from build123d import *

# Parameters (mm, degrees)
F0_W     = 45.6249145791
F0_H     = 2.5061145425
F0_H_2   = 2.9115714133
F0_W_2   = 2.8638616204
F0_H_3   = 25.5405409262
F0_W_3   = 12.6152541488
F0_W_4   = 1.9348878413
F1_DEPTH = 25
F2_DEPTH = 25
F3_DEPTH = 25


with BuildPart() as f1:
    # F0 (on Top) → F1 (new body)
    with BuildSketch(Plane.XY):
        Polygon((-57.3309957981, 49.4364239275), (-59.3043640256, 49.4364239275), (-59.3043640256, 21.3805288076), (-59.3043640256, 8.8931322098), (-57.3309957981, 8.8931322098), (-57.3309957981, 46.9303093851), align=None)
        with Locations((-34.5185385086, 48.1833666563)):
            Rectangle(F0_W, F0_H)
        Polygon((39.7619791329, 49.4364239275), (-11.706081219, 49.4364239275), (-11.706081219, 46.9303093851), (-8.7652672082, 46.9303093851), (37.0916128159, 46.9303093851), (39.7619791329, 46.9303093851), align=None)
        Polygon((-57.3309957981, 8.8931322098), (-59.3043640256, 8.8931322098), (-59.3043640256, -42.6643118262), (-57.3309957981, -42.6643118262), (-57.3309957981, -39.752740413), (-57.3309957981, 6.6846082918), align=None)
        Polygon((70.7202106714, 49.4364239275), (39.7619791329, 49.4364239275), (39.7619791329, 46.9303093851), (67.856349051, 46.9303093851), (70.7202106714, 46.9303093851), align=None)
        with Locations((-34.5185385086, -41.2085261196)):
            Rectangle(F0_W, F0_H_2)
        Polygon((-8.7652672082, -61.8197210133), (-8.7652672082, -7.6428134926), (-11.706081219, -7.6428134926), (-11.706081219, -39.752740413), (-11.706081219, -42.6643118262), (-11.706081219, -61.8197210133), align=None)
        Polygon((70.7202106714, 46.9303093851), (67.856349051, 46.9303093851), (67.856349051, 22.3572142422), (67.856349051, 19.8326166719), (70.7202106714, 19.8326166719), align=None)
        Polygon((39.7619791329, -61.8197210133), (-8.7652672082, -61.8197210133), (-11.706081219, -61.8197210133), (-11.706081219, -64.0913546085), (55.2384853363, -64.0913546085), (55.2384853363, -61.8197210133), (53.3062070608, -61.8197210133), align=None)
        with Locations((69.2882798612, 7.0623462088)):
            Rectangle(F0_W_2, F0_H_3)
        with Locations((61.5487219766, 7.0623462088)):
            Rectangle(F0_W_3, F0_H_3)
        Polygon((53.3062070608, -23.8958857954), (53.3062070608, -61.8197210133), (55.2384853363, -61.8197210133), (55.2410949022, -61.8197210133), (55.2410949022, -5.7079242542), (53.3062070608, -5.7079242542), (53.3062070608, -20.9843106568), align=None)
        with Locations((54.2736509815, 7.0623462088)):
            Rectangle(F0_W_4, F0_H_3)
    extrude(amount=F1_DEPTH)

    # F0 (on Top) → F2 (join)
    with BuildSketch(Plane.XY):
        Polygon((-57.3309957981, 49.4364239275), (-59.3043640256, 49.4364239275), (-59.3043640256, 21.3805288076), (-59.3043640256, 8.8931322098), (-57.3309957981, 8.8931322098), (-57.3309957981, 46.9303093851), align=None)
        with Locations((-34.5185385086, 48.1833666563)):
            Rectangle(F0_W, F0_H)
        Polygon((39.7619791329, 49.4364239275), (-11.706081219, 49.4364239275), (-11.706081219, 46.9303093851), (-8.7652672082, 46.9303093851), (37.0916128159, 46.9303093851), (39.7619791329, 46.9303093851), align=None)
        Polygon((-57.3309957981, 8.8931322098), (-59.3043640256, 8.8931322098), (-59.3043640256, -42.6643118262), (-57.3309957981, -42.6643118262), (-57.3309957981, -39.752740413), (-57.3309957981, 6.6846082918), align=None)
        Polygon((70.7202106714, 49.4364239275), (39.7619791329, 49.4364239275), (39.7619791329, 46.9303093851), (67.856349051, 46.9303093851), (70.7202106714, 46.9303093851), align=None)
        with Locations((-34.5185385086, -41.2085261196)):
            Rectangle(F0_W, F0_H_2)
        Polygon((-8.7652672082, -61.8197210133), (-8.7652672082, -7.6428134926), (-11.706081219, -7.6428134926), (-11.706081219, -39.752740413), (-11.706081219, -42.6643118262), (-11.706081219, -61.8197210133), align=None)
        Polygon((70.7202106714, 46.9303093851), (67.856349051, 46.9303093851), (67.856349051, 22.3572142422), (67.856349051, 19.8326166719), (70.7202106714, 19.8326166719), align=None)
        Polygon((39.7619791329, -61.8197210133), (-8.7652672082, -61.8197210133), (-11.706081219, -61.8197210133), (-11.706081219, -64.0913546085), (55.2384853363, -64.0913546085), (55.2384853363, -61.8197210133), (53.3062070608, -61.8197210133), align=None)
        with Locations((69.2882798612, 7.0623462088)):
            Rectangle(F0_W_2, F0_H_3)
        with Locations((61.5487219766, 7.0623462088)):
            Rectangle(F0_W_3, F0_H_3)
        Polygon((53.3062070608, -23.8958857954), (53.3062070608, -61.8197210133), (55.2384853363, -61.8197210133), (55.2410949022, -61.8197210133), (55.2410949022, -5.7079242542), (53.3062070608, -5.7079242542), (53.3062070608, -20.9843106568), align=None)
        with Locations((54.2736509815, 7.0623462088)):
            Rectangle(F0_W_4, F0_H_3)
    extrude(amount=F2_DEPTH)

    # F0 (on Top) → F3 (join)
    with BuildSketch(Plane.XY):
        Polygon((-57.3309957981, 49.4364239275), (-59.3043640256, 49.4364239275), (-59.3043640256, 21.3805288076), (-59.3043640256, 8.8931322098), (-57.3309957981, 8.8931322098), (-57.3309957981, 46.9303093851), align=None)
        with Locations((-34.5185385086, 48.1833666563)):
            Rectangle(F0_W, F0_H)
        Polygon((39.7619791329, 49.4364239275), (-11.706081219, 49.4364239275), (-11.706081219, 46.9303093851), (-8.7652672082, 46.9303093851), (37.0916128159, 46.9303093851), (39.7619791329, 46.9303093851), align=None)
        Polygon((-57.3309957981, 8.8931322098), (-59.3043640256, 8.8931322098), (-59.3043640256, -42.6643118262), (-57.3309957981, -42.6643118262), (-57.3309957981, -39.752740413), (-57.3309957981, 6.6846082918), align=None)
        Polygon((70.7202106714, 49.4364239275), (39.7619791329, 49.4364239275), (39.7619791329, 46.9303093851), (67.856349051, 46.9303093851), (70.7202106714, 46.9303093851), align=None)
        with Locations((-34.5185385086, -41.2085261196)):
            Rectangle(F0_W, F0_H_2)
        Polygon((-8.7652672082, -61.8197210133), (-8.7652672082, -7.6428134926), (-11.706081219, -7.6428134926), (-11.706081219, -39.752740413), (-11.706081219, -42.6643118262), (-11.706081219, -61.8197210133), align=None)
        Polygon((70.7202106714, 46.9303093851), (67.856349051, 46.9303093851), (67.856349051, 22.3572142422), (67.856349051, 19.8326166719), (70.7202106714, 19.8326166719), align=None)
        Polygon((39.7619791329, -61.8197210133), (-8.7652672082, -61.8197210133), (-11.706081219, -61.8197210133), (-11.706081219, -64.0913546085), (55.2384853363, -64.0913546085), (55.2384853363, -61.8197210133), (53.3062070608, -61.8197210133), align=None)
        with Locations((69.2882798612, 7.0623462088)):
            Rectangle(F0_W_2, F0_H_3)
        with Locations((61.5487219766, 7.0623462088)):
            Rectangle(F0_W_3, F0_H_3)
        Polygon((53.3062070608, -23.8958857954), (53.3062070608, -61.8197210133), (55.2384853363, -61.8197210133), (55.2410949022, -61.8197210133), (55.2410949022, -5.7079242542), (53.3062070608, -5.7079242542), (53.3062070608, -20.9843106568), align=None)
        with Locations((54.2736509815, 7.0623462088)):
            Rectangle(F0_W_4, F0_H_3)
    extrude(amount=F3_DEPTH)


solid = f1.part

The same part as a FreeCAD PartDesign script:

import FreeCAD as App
import Part
import Sketcher
from FreeCAD import Vector


def add_polygon(sketch, points):
    """Adds a closed chain of lines whose ends are joined by coincident constraints."""
    first, n = sketch.GeometryCount, len(points)
    for a, b in zip(points, points[1:] + points[:1]):
        sketch.addGeometry(Part.LineSegment(App.Vector(*a, 0), App.Vector(*b, 0)), False)
    for i in range(n):
        sketch.addConstraint(Sketcher.Constraint("Coincident", first + i, 2, first + (i + 1) % n, 1))

doc = App.newDocument("Part")
body = doc.addObject("PartDesign::Body", "Body")

# Sketch on XY plane
sketch1 = body.newObject("Sketcher::SketchObject", "Sketch")
sketch1.AttachmentSupport = (doc.getObject("XY_Plane"), [""])
sketch1.MapMode = "FlatFace"
add_polygon(sketch1, [(55.2411, -61.8197), (55.2411, -5.7079), (70.7202, -5.7079), (70.7202, 49.4364), (-59.3044, 49.4364), (-59.3044, -42.6643), (-57.331, -42.6643), (-11.7061, -42.6643), (-11.7061, -64.0914), (55.2385, -64.0914), (55.2385, -61.8197)])  # lines 0-10
add_polygon(sketch1, [(67.8563, 19.8326), (53.3062, 19.8326), (53.3062, -61.8197), (-8.7653, -61.8197), (-8.7653, -7.6428), (-11.7061, -7.6428), (-11.7061, -39.7527), (-57.331, -39.7527), (-57.331, 46.9303), (67.8563, 46.9303)])  # lines 11-20
sketch1.addConstraint(Sketcher.Constraint("Vertical", 0))
sketch1.addConstraint(Sketcher.Constraint("Horizontal", 1))
sketch1.addConstraint(Sketcher.Constraint("Vertical", 2))
sketch1.addConstraint(Sketcher.Constraint("Horizontal", 3))
sketch1.addConstraint(Sketcher.Constraint("Vertical", 4))
sketch1.addConstraint(Sketcher.Constraint("Horizontal", 5))
sketch1.addConstraint(Sketcher.Constraint("Horizontal", 6))
sketch1.addConstraint(Sketcher.Constraint("Vertical", 7))
sketch1.addConstraint(Sketcher.Constraint("Horizontal", 8))
sketch1.addConstraint(Sketcher.Constraint("Vertical", 9))
sketch1.addConstraint(Sketcher.Constraint("Horizontal", 10))
sketch1.addConstraint(Sketcher.Constraint("Horizontal", 11))
sketch1.addConstraint(Sketcher.Constraint("Vertical", 12))
sketch1.addConstraint(Sketcher.Constraint("Horizontal", 13))
sketch1.addConstraint(Sketcher.Constraint("Vertical", 14))
sketch1.addConstraint(Sketcher.Constraint("Horizontal", 15))
sketch1.addConstraint(Sketcher.Constraint("Vertical", 16))
sketch1.addConstraint(Sketcher.Constraint("Horizontal", 17))
sketch1.addConstraint(Sketcher.Constraint("Vertical", 18))
sketch1.addConstraint(Sketcher.Constraint("Horizontal", 19))
sketch1.addConstraint(Sketcher.Constraint("Vertical", 20))
sketch1.addConstraint(Sketcher.Constraint("Horizontal", 10, 2, 12, 2))
sketch1.addConstraint(Sketcher.Constraint("Vertical", 7, 2, 15, 2))
sketch1.addConstraint(Sketcher.Constraint("Vertical", 5, 2, 17, 2))
sketch1.addConstraint(Sketcher.Constraint("DistanceX", 5, 1, 5, 2, 1.973368))
sketch1.addConstraint(Sketcher.Constraint("DistanceX", 10, 1, 10, 2, 0.00261))
sketch1.addConstraint(Sketcher.Constraint("DistanceX", 11, 2, 11, 1, 14.550142))
sketch1.addConstraint(Sketcher.Constraint("DistanceY", 2, 1, 2, 2, 55.144348))
sketch1.addConstraint(Sketcher.Constraint("DistanceY", 18, 1, 18, 2, 86.68305))
sketch1.addConstraint(Sketcher.Constraint("DistanceY", 6, 2, 14, 2, 35.021498))
sketch1.addConstraint(Sketcher.Constraint("DistanceX", 1, 1, 1, 2, 15.479116))
sketch1.addConstraint(Sketcher.Constraint("DistanceX", 3, 2, 3, 1, 130.024575))
sketch1.addConstraint(Sketcher.Constraint("DistanceX", 6, 1, 6, 2, 45.624915))
sketch1.addConstraint(Sketcher.Constraint("DistanceX", 13, 2, 13, 1, 62.071474))
sketch1.addConstraint(Sketcher.Constraint("DistanceX", 15, 2, 15, 1, 2.940814))
sketch1.addConstraint(Sketcher.Constraint("DistanceY", 0, 1, 0, 2, 56.111797))
sketch1.addConstraint(Sketcher.Constraint("DistanceY", 4, 2, 4, 1, 92.100736))
sketch1.addConstraint(Sketcher.Constraint("DistanceY", 7, 2, 7, 1, 21.427043))
sketch1.addConstraint(Sketcher.Constraint("DistanceY", 12, 2, 12, 1, 81.652338))
sketch1.addConstraint(Sketcher.Constraint("DistanceY", 16, 2, 16, 1, 32.109927))
sketch1.addConstraint(Sketcher.Constraint("DistanceX", -1, 1, 1, 2, 70.720211))
sketch1.addConstraint(Sketcher.Constraint("DistanceY", 4, 2, -1, 1, 42.664312))
pad1 = body.newObject("PartDesign::Pad", "Pad")
pad1.Profile = sketch1
pad1.Length = 25

# Sketch on XY plane
sketch2 = body.newObject("Sketcher::SketchObject", "Sketch001")
sketch2.AttachmentSupport = (doc.getObject("XY_Plane"), [""])
sketch2.MapMode = "FlatFace"
add_polygon(sketch2, [(55.2411, -61.8197), (55.2411, -5.7079), (70.7202, -5.7079), (70.7202, 49.4364), (-59.3044, 49.4364), (-59.3044, -42.6643), (-57.331, -42.6643), (-11.7061, -42.6643), (-11.7061, -64.0914), (55.2385, -64.0914), (55.2385, -61.8197)])  # lines 0-10
add_polygon(sketch2, [(67.8563, 19.8326), (53.3062, 19.8326), (53.3062, -61.8197), (-8.7653, -61.8197), (-8.7653, -7.6428), (-11.7061, -7.6428), (-11.7061, -39.7527), (-57.331, -39.7527), (-57.331, 46.9303), (67.8563, 46.9303)])  # lines 11-20
sketch2.addConstraint(Sketcher.Constraint("Vertical", 0))
sketch2.addConstraint(Sketcher.Constraint("Horizontal", 1))
sketch2.addConstraint(Sketcher.Constraint("Vertical", 2))
sketch2.addConstraint(Sketcher.Constraint("Horizontal", 3))
sketch2.addConstraint(Sketcher.Constraint("Vertical", 4))
sketch2.addConstraint(Sketcher.Constraint("Horizontal", 5))
sketch2.addConstraint(Sketcher.Constraint("Horizontal", 6))
sketch2.addConstraint(Sketcher.Constraint("Vertical", 7))
sketch2.addConstraint(Sketcher.Constraint("Horizontal", 8))
sketch2.addConstraint(Sketcher.Constraint("Vertical", 9))
sketch2.addConstraint(Sketcher.Constraint("Horizontal", 10))
sketch2.addConstraint(Sketcher.Constraint("Horizontal", 11))
sketch2.addConstraint(Sketcher.Constraint("Vertical", 12))
sketch2.addConstraint(Sketcher.Constraint("Horizontal", 13))
sketch2.addConstraint(Sketcher.Constraint("Vertical", 14))
sketch2.addConstraint(Sketcher.Constraint("Horizontal", 15))
sketch2.addConstraint(Sketcher.Constraint("Vertical", 16))
sketch2.addConstraint(Sketcher.Constraint("Horizontal", 17))
sketch2.addConstraint(Sketcher.Constraint("Vertical", 18))
sketch2.addConstraint(Sketcher.Constraint("Horizontal", 19))
sketch2.addConstraint(Sketcher.Constraint("Vertical", 20))
sketch2.addConstraint(Sketcher.Constraint("Horizontal", 10, 2, 12, 2))
sketch2.addConstraint(Sketcher.Constraint("Vertical", 7, 2, 15, 2))
sketch2.addConstraint(Sketcher.Constraint("Vertical", 5, 2, 17, 2))
sketch2.addConstraint(Sketcher.Constraint("DistanceX", 5, 1, 5, 2, 1.973368))
sketch2.addConstraint(Sketcher.Constraint("DistanceX", 10, 1, 10, 2, 0.00261))
sketch2.addConstraint(Sketcher.Constraint("DistanceX", 11, 2, 11, 1, 14.550142))
sketch2.addConstraint(Sketcher.Constraint("DistanceY", 2, 1, 2, 2, 55.144348))
sketch2.addConstraint(Sketcher.Constraint("DistanceY", 18, 1, 18, 2, 86.68305))
sketch2.addConstraint(Sketcher.Constraint("DistanceY", 6, 2, 14, 2, 35.021498))
sketch2.addConstraint(Sketcher.Constraint("DistanceX", 1, 1, 1, 2, 15.479116))
sketch2.addConstraint(Sketcher.Constraint("DistanceX", 3, 2, 3, 1, 130.024575))
sketch2.addConstraint(Sketcher.Constraint("DistanceX", 6, 1, 6, 2, 45.624915))
sketch2.addConstraint(Sketcher.Constraint("DistanceX", 13, 2, 13, 1, 62.071474))
sketch2.addConstraint(Sketcher.Constraint("DistanceX", 15, 2, 15, 1, 2.940814))
sketch2.addConstraint(Sketcher.Constraint("DistanceY", 0, 1, 0, 2, 56.111797))
sketch2.addConstraint(Sketcher.Constraint("DistanceY", 4, 2, 4, 1, 92.100736))
sketch2.addConstraint(Sketcher.Constraint("DistanceY", 7, 2, 7, 1, 21.427043))
sketch2.addConstraint(Sketcher.Constraint("DistanceY", 12, 2, 12, 1, 81.652338))
sketch2.addConstraint(Sketcher.Constraint("DistanceY", 16, 2, 16, 1, 32.109927))
sketch2.addConstraint(Sketcher.Constraint("DistanceX", -1, 1, 1, 2, 70.720211))
sketch2.addConstraint(Sketcher.Constraint("DistanceY", 4, 2, -1, 1, 42.664312))
pad2 = body.newObject("PartDesign::Pad", "Pad001")
pad2.Profile = sketch2
pad2.Length = 25

# Sketch on XY plane
sketch3 = body.newObject("Sketcher::SketchObject", "Sketch002")
sketch3.AttachmentSupport = (doc.getObject("XY_Plane"), [""])
sketch3.MapMode = "FlatFace"
add_polygon(sketch3, [(55.2411, -61.8197), (55.2411, -5.7079), (70.7202, -5.7079), (70.7202, 49.4364), (-59.3044, 49.4364), (-59.3044, -42.6643), (-57.331, -42.6643), (-11.7061, -42.6643), (-11.7061, -64.0914), (55.2385, -64.0914), (55.2385, -61.8197)])  # lines 0-10
add_polygon(sketch3, [(67.8563, 19.8326), (53.3062, 19.8326), (53.3062, -61.8197), (-8.7653, -61.8197), (-8.7653, -7.6428), (-11.7061, -7.6428), (-11.7061, -39.7527), (-57.331, -39.7527), (-57.331, 46.9303), (67.8563, 46.9303)])  # lines 11-20
sketch3.addConstraint(Sketcher.Constraint("Vertical", 0))
sketch3.addConstraint(Sketcher.Constraint("Horizontal", 1))
sketch3.addConstraint(Sketcher.Constraint("Vertical", 2))
sketch3.addConstraint(Sketcher.Constraint("Horizontal", 3))
sketch3.addConstraint(Sketcher.Constraint("Vertical", 4))
sketch3.addConstraint(Sketcher.Constraint("Horizontal", 5))
sketch3.addConstraint(Sketcher.Constraint("Horizontal", 6))
sketch3.addConstraint(Sketcher.Constraint("Vertical", 7))
sketch3.addConstraint(Sketcher.Constraint("Horizontal", 8))
sketch3.addConstraint(Sketcher.Constraint("Vertical", 9))
sketch3.addConstraint(Sketcher.Constraint("Horizontal", 10))
sketch3.addConstraint(Sketcher.Constraint("Horizontal", 11))
sketch3.addConstraint(Sketcher.Constraint("Vertical", 12))
sketch3.addConstraint(Sketcher.Constraint("Horizontal", 13))
sketch3.addConstraint(Sketcher.Constraint("Vertical", 14))
sketch3.addConstraint(Sketcher.Constraint("Horizontal", 15))
sketch3.addConstraint(Sketcher.Constraint("Vertical", 16))
sketch3.addConstraint(Sketcher.Constraint("Horizontal", 17))
sketch3.addConstraint(Sketcher.Constraint("Vertical", 18))
sketch3.addConstraint(Sketcher.Constraint("Horizontal", 19))
sketch3.addConstraint(Sketcher.Constraint("Vertical", 20))
sketch3.addConstraint(Sketcher.Constraint("Horizontal", 10, 2, 12, 2))
sketch3.addConstraint(Sketcher.Constraint("Vertical", 7, 2, 15, 2))
sketch3.addConstraint(Sketcher.Constraint("Vertical", 5, 2, 17, 2))
sketch3.addConstraint(Sketcher.Constraint("DistanceX", 5, 1, 5, 2, 1.973368))
sketch3.addConstraint(Sketcher.Constraint("DistanceX", 10, 1, 10, 2, 0.00261))
sketch3.addConstraint(Sketcher.Constraint("DistanceX", 11, 2, 11, 1, 14.550142))
sketch3.addConstraint(Sketcher.Constraint("DistanceY", 2, 1, 2, 2, 55.144348))
sketch3.addConstraint(Sketcher.Constraint("DistanceY", 18, 1, 18, 2, 86.68305))
sketch3.addConstraint(Sketcher.Constraint("DistanceY", 6, 2, 14, 2, 35.021498))
sketch3.addConstraint(Sketcher.Constraint("DistanceX", 1, 1, 1, 2, 15.479116))
sketch3.addConstraint(Sketcher.Constraint("DistanceX", 3, 2, 3, 1, 130.024575))
sketch3.addConstraint(Sketcher.Constraint("DistanceX", 6, 1, 6, 2, 45.624915))
sketch3.addConstraint(Sketcher.Constraint("DistanceX", 13, 2, 13, 1, 62.071474))
sketch3.addConstraint(Sketcher.Constraint("DistanceX", 15, 2, 15, 1, 2.940814))
sketch3.addConstraint(Sketcher.Constraint("DistanceY", 0, 1, 0, 2, 56.111797))
sketch3.addConstraint(Sketcher.Constraint("DistanceY", 4, 2, 4, 1, 92.100736))
sketch3.addConstraint(Sketcher.Constraint("DistanceY", 7, 2, 7, 1, 21.427043))
sketch3.addConstraint(Sketcher.Constraint("DistanceY", 12, 2, 12, 1, 81.652338))
sketch3.addConstraint(Sketcher.Constraint("DistanceY", 16, 2, 16, 1, 32.109927))
sketch3.addConstraint(Sketcher.Constraint("DistanceX", -1, 1, 1, 2, 70.720211))
sketch3.addConstraint(Sketcher.Constraint("DistanceY", 4, 2, -1, 1, 42.664312))
pad3 = body.newObject("PartDesign::Pad", "Pad002")
pad3.Profile = sketch3
pad3.Length = 25

doc.recompute()
